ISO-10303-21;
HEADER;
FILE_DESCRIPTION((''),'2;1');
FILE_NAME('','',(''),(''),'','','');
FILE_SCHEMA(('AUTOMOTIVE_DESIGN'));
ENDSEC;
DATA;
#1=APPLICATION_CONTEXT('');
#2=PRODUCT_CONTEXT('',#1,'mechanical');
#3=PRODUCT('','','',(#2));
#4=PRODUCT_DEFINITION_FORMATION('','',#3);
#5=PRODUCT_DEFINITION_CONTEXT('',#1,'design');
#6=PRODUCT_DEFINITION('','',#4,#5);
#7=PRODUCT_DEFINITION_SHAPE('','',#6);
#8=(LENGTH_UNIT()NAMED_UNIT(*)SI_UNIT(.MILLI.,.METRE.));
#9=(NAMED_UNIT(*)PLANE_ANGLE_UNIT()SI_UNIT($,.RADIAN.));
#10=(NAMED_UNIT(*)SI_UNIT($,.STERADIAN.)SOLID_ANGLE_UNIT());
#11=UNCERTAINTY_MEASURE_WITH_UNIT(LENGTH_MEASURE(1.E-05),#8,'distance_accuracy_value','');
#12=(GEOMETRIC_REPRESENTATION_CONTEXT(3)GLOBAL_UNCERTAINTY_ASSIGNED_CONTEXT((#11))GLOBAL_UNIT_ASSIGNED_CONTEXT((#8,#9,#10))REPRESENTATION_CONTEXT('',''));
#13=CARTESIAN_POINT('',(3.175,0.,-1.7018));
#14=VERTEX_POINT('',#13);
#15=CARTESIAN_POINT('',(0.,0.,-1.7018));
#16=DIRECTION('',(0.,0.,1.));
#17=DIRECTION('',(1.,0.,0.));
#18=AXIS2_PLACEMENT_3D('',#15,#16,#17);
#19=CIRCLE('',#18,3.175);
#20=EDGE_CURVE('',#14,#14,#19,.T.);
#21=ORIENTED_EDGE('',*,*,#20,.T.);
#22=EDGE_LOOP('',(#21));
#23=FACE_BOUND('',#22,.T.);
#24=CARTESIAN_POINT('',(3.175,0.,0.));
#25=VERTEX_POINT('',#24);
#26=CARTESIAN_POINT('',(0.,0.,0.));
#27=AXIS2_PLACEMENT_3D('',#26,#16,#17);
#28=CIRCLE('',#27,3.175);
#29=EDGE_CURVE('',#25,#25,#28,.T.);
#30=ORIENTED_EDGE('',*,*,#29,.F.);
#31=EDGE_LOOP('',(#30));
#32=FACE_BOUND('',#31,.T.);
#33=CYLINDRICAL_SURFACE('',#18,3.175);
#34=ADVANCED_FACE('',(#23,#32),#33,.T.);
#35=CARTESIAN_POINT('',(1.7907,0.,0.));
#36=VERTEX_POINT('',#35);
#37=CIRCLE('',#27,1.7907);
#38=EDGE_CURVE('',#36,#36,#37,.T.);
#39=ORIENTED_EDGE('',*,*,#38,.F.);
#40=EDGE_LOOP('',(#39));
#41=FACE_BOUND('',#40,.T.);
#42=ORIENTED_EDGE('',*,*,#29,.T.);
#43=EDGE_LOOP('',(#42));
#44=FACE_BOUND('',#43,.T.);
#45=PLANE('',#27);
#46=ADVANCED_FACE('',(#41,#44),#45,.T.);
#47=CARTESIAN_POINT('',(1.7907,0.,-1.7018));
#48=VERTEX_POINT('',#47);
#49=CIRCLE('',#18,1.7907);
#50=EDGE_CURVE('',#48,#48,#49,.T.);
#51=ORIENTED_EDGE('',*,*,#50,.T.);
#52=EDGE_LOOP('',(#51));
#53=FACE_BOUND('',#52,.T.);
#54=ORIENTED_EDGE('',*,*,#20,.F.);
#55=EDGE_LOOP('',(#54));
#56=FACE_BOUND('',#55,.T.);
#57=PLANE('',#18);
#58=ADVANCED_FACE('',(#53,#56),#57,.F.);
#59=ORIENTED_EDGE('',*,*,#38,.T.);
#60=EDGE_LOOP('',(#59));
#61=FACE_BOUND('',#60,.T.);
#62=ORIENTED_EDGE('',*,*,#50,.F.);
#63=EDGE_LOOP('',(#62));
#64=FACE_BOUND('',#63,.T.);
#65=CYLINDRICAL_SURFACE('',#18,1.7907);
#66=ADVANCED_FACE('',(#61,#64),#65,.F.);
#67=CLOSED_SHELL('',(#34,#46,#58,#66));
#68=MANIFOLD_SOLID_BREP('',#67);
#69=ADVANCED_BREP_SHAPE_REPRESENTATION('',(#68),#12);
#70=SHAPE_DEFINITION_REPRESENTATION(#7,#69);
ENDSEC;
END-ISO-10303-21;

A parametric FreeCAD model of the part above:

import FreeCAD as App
import Part
import Sketcher
from FreeCAD import Vector
Q = App.Units.Quantity

doc = App.newDocument("Part")
body = doc.addObject("PartDesign::Body", "Body")

# Sketch on XY plane
sketch1 = doc.addObject("Sketcher::SketchObject", "Sketch")
body.addObject(sketch1)
sketch1.AttachmentSupport = (doc.XY_Plane, [""])
sketch1.MapMode = "FlatFace"
sketch1.addGeometry([
    Part.Circle(Vector(0, 0, 0), Vector(0, 0, 1), 3.175),
    Part.Circle(Vector(0, 0, 0), Vector(0, 0, 1), 1.7907),
], False)
sketch1.addConstraint([
    Sketcher.Constraint("Coincident", 0, 3, -1, 1),
    Sketcher.Constraint("Coincident", 1, 3, -1, 1),
    Sketcher.Constraint("Diameter", 0, Q("0.25 in")),
    Sketcher.Constraint("Diameter", 1, Q("0.141 in")),
])
pad1 = doc.addObject("PartDesign::Pad", "Pad")
body.addObject(pad1)
pad1.Profile = sketch1
pad1.Length = Q("0.067 in")
pad1.Reversed = True

doc.recompute()
